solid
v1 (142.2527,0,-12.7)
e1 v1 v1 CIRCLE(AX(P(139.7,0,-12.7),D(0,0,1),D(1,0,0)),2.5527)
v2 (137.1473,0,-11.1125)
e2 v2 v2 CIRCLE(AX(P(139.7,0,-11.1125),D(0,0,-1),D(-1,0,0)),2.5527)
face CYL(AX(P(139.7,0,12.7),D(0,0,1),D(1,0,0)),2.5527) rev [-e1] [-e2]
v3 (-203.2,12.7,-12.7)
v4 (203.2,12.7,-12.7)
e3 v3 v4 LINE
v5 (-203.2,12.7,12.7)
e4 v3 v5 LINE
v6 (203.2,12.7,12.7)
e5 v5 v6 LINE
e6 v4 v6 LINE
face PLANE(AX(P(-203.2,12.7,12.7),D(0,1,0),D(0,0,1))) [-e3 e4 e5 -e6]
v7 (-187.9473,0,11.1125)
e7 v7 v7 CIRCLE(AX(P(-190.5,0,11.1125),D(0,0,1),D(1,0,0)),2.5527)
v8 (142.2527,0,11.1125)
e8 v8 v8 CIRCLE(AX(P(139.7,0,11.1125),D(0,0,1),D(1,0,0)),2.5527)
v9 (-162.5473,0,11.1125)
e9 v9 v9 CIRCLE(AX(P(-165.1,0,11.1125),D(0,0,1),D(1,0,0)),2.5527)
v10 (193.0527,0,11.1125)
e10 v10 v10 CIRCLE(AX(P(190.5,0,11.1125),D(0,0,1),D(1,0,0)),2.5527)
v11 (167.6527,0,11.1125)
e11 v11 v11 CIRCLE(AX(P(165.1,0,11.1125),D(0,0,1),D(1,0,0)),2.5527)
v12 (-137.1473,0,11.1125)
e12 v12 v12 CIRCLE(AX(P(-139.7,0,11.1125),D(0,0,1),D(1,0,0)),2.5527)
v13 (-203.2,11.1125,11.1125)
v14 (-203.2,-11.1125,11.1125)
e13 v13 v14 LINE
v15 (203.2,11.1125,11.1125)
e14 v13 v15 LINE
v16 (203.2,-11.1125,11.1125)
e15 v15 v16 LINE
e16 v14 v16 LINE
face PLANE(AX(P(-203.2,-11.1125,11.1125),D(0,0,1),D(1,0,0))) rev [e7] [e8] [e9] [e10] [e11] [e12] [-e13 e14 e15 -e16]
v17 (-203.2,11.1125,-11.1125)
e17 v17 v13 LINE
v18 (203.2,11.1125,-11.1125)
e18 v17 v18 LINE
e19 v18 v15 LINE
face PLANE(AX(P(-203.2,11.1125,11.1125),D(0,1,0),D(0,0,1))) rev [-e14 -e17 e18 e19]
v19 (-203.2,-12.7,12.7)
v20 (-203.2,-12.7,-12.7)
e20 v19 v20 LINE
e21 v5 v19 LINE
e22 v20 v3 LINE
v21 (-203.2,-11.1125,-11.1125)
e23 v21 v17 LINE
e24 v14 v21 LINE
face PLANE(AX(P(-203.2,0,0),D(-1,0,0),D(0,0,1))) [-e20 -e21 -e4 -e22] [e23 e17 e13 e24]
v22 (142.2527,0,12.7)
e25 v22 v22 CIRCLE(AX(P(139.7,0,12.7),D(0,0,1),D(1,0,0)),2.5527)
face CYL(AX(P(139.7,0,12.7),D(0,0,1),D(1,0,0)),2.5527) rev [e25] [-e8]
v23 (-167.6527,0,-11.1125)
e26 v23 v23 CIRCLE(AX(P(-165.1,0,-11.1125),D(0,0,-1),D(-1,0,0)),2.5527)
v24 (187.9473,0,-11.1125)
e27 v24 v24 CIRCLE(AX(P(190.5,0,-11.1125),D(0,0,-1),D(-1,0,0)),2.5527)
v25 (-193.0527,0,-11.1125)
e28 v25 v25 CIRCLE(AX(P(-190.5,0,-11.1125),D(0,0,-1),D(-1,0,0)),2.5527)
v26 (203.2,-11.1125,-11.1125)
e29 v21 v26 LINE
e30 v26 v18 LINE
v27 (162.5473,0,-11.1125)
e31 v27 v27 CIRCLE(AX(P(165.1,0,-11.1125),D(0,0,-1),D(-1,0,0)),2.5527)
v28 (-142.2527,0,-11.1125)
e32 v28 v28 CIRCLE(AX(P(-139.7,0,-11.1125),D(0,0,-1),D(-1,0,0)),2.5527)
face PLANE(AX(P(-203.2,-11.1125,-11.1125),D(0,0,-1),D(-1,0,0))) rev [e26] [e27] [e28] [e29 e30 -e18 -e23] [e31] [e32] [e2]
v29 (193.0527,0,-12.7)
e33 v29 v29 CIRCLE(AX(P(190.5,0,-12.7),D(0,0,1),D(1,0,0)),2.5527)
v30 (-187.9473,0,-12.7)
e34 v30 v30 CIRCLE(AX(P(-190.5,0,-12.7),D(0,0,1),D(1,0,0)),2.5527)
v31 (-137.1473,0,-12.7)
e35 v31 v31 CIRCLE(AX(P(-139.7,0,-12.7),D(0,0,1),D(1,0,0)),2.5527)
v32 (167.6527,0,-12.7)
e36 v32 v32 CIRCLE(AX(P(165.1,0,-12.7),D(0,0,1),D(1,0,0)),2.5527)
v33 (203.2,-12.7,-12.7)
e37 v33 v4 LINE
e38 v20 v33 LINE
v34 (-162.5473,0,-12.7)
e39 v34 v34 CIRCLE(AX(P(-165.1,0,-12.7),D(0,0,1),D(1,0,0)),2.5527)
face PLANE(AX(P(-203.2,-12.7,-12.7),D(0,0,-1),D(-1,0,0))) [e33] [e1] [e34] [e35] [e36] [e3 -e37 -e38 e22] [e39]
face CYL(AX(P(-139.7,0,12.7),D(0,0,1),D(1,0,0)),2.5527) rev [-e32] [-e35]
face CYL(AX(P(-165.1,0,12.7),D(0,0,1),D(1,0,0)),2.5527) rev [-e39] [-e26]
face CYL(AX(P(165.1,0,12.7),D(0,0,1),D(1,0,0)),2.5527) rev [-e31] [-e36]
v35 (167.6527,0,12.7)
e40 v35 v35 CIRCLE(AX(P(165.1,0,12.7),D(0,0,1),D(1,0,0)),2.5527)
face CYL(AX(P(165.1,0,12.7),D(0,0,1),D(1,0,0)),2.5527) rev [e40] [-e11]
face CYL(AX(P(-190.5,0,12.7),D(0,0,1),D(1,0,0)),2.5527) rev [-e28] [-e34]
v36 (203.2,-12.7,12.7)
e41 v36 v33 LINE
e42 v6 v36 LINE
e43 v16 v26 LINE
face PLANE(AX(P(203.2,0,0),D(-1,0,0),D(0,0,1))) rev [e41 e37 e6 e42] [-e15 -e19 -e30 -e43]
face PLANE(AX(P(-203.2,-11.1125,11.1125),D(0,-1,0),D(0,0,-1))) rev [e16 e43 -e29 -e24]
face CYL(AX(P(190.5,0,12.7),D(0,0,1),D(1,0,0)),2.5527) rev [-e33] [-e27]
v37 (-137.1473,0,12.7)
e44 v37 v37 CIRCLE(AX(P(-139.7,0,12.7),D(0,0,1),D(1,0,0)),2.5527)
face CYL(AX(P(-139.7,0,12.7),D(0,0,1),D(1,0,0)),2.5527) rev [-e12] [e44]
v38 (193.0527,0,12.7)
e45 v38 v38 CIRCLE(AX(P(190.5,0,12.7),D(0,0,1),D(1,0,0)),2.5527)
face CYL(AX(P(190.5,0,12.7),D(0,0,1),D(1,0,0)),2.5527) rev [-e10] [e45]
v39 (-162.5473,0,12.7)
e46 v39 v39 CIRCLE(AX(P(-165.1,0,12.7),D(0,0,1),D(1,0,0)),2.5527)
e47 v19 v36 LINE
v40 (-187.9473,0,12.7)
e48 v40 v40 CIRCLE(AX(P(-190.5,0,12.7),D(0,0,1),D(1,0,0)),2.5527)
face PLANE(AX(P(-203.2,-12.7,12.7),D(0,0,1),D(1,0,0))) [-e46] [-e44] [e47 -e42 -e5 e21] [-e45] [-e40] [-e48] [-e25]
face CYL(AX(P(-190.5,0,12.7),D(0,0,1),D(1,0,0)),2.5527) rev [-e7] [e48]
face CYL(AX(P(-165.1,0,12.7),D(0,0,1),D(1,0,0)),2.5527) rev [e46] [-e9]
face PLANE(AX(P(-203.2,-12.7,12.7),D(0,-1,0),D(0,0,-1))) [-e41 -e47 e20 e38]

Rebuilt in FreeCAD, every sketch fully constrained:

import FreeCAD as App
import Part
import Sketcher

V = App.Vector
Q = App.Units.Quantity

doc = App.newDocument("Part")
body = doc.addObject("PartDesign::Body", "Body")

# Sketch on YZ plane
sketch1 = doc.addObject("Sketcher::SketchObject", "Sketch")
body.addObject(sketch1)
sketch1.AttachmentSupport = (doc.YZ_Plane, [""])
sketch1.MapMode = "FlatFace"
sketch1.addGeometry(Part.LineSegment(V(13, 13, 0), V(-13, 13, 0)), False)
sketch1.addGeometry(Part.LineSegment(V(-13, 13, 0), V(-13, -13, 0)), False)
sketch1.addGeometry(Part.LineSegment(V(-13, -13, 0), V(13, -13, 0)), False)
sketch1.addGeometry(Part.LineSegment(V(13, -13, 0), V(13, 13, 0)), False)
sketch1.addGeometry(Part.LineSegment(V(-11, -11, 0), V(-11, 11, 0)), False)
sketch1.addGeometry(Part.LineSegment(V(-11, 11, 0), V(11, 11, 0)), False)
sketch1.addGeometry(Part.LineSegment(V(11, 11, 0), V(11, -11, 0)), False)
sketch1.addGeometry(Part.LineSegment(V(11, -11, 0), V(-11, -11, 0)), False)
sketch1.addConstraint(Sketcher.Constraint("Coincident", 0, 2, 1, 1))
sketch1.addConstraint(Sketcher.Constraint("Coincident", 1, 2, 2, 1))
sketch1.addConstraint(Sketcher.Constraint("Coincident", 2, 2, 3, 1))
sketch1.addConstraint(Sketcher.Constraint("Coincident", 3, 2, 0, 1))
sketch1.addConstraint(Sketcher.Constraint("Coincident", 4, 2, 5, 1))
sketch1.addConstraint(Sketcher.Constraint("Coincident", 5, 2, 6, 1))
sketch1.addConstraint(Sketcher.Constraint("Coincident", 6, 2, 7, 1))
sketch1.addConstraint(Sketcher.Constraint("Coincident", 7, 2, 4, 1))
sketch1.addConstraint(Sketcher.Constraint("Horizontal", 0))
sketch1.addConstraint(Sketcher.Constraint("Vertical", 1))
sketch1.addConstraint(Sketcher.Constraint("Horizontal", 2))
sketch1.addConstraint(Sketcher.Constraint("Vertical", 3))
sketch1.addConstraint(Sketcher.Constraint("Vertical", 4))
sketch1.addConstraint(Sketcher.Constraint("Horizontal", 5))
sketch1.addConstraint(Sketcher.Constraint("Vertical", 6))
sketch1.addConstraint(Sketcher.Constraint("Horizontal", 7))
sketch1.addConstraint(Sketcher.Constraint("Symmetric", 0, 2, 2, 2, -1, 1))
sketch1.addConstraint(Sketcher.Constraint("Symmetric", 4, 2, 6, 2, -1, 1))
sketch1.addConstraint(Sketcher.Constraint("Equal", 2, 1))
sketch1.addConstraint(Sketcher.Constraint("Equal", 7, 4))
sketch1.addConstraint(Sketcher.Constraint("DistanceX", 0, 2, 0, 1, Q("1 in")))
sketch1.addConstraint(Sketcher.Constraint("DistanceX", 5, 1, 5, 2, Q("0.875 in")))
pad1 = doc.addObject("PartDesign::Pad", "Pad")
body.addObject(pad1)
pad1.Profile = sketch1
pad1.Type = "TwoLengths"
pad1.Length = Q("8 in")
pad1.Length2 = Q("8 in")

# Sketch on XY plane
sketch2 = doc.addObject("Sketcher::SketchObject", "Sketch001")
body.addObject(sketch2)
sketch2.AttachmentSupport = (doc.XY_Plane, [""])
sketch2.MapMode = "FlatFace"
sketch2.AttachmentOffset = App.Placement(V(0, 0, 0.5 * 25.4), App.Rotation())
sketch2.addGeometry(Part.Circle(V(190.5, 0, 0), V(0, 0, 1), 2.6), False)
sketch2.addGeometry(Part.Circle(V(165.1, 0, 0), V(0, 0, 1), 2.6), False)
sketch2.addGeometry(Part.Circle(V(139.7, 0, 0), V(0, 0, 1), 2.6), False)
sketch2.addGeometry(Part.Circle(V(-139.7, 0, 0), V(0, 0, 1), 2.6), False)
sketch2.addGeometry(Part.Circle(V(-165.1, 0, 0), V(0, 0, 1), 2.6), False)
sketch2.addGeometry(Part.Circle(V(-190.5, 0, 0), V(0, 0, 1), 2.6), False)
sketch2.addConstraint(Sketcher.Constraint("Equal", 0, 1))
sketch2.addConstraint(Sketcher.Constraint("Equal", 1, 2))
sketch2.addConstraint(Sketcher.Constraint("Equal", 2, 3))
sketch2.addConstraint(Sketcher.Constraint("Equal", 3, 4))
sketch2.addConstraint(Sketcher.Constraint("Equal", 4, 5))
sketch2.addConstraint(Sketcher.Constraint("Symmetric", 2, 3, 3, 3, -1, 1))
sketch2.addConstraint(Sketcher.Constraint("Symmetric", 1, 3, 4, 3, -1, 1))
sketch2.addConstraint(Sketcher.Constraint("Symmetric", 0, 3, 5, 3, -1, 1))
sketch2.addConstraint(Sketcher.Constraint("PointOnObject", 0, 3, -1))
sketch2.addConstraint(Sketcher.Constraint("PointOnObject", 1, 3, -1))
sketch2.addConstraint(Sketcher.Constraint("PointOnObject", 2, 3, -1))
sketch2.addConstraint(Sketcher.Constraint("Diameter", 0, Q("0.201 in")))
sketch2.addConstraint(Sketcher.Constraint("DistanceX", 1, 3, 0, 3, Q("1 in")))
sketch2.addConstraint(Sketcher.Constraint("DistanceX", 2, 3, 1, 3, Q("1 in")))
sketch2.addConstraint(Sketcher.Constraint("DistanceX", 3, 3, 2, 3, Q("11 in")))
doc.recompute()
hole = doc.addObject("PartDesign::Hole", "Hole")
body.addObject(hole)
hole.Profile = sketch2
hole.ThreadType = "None"
hole.Diameter = Q("0.201 in")
hole.DepthType = "ThroughAll"

doc.recompute()
